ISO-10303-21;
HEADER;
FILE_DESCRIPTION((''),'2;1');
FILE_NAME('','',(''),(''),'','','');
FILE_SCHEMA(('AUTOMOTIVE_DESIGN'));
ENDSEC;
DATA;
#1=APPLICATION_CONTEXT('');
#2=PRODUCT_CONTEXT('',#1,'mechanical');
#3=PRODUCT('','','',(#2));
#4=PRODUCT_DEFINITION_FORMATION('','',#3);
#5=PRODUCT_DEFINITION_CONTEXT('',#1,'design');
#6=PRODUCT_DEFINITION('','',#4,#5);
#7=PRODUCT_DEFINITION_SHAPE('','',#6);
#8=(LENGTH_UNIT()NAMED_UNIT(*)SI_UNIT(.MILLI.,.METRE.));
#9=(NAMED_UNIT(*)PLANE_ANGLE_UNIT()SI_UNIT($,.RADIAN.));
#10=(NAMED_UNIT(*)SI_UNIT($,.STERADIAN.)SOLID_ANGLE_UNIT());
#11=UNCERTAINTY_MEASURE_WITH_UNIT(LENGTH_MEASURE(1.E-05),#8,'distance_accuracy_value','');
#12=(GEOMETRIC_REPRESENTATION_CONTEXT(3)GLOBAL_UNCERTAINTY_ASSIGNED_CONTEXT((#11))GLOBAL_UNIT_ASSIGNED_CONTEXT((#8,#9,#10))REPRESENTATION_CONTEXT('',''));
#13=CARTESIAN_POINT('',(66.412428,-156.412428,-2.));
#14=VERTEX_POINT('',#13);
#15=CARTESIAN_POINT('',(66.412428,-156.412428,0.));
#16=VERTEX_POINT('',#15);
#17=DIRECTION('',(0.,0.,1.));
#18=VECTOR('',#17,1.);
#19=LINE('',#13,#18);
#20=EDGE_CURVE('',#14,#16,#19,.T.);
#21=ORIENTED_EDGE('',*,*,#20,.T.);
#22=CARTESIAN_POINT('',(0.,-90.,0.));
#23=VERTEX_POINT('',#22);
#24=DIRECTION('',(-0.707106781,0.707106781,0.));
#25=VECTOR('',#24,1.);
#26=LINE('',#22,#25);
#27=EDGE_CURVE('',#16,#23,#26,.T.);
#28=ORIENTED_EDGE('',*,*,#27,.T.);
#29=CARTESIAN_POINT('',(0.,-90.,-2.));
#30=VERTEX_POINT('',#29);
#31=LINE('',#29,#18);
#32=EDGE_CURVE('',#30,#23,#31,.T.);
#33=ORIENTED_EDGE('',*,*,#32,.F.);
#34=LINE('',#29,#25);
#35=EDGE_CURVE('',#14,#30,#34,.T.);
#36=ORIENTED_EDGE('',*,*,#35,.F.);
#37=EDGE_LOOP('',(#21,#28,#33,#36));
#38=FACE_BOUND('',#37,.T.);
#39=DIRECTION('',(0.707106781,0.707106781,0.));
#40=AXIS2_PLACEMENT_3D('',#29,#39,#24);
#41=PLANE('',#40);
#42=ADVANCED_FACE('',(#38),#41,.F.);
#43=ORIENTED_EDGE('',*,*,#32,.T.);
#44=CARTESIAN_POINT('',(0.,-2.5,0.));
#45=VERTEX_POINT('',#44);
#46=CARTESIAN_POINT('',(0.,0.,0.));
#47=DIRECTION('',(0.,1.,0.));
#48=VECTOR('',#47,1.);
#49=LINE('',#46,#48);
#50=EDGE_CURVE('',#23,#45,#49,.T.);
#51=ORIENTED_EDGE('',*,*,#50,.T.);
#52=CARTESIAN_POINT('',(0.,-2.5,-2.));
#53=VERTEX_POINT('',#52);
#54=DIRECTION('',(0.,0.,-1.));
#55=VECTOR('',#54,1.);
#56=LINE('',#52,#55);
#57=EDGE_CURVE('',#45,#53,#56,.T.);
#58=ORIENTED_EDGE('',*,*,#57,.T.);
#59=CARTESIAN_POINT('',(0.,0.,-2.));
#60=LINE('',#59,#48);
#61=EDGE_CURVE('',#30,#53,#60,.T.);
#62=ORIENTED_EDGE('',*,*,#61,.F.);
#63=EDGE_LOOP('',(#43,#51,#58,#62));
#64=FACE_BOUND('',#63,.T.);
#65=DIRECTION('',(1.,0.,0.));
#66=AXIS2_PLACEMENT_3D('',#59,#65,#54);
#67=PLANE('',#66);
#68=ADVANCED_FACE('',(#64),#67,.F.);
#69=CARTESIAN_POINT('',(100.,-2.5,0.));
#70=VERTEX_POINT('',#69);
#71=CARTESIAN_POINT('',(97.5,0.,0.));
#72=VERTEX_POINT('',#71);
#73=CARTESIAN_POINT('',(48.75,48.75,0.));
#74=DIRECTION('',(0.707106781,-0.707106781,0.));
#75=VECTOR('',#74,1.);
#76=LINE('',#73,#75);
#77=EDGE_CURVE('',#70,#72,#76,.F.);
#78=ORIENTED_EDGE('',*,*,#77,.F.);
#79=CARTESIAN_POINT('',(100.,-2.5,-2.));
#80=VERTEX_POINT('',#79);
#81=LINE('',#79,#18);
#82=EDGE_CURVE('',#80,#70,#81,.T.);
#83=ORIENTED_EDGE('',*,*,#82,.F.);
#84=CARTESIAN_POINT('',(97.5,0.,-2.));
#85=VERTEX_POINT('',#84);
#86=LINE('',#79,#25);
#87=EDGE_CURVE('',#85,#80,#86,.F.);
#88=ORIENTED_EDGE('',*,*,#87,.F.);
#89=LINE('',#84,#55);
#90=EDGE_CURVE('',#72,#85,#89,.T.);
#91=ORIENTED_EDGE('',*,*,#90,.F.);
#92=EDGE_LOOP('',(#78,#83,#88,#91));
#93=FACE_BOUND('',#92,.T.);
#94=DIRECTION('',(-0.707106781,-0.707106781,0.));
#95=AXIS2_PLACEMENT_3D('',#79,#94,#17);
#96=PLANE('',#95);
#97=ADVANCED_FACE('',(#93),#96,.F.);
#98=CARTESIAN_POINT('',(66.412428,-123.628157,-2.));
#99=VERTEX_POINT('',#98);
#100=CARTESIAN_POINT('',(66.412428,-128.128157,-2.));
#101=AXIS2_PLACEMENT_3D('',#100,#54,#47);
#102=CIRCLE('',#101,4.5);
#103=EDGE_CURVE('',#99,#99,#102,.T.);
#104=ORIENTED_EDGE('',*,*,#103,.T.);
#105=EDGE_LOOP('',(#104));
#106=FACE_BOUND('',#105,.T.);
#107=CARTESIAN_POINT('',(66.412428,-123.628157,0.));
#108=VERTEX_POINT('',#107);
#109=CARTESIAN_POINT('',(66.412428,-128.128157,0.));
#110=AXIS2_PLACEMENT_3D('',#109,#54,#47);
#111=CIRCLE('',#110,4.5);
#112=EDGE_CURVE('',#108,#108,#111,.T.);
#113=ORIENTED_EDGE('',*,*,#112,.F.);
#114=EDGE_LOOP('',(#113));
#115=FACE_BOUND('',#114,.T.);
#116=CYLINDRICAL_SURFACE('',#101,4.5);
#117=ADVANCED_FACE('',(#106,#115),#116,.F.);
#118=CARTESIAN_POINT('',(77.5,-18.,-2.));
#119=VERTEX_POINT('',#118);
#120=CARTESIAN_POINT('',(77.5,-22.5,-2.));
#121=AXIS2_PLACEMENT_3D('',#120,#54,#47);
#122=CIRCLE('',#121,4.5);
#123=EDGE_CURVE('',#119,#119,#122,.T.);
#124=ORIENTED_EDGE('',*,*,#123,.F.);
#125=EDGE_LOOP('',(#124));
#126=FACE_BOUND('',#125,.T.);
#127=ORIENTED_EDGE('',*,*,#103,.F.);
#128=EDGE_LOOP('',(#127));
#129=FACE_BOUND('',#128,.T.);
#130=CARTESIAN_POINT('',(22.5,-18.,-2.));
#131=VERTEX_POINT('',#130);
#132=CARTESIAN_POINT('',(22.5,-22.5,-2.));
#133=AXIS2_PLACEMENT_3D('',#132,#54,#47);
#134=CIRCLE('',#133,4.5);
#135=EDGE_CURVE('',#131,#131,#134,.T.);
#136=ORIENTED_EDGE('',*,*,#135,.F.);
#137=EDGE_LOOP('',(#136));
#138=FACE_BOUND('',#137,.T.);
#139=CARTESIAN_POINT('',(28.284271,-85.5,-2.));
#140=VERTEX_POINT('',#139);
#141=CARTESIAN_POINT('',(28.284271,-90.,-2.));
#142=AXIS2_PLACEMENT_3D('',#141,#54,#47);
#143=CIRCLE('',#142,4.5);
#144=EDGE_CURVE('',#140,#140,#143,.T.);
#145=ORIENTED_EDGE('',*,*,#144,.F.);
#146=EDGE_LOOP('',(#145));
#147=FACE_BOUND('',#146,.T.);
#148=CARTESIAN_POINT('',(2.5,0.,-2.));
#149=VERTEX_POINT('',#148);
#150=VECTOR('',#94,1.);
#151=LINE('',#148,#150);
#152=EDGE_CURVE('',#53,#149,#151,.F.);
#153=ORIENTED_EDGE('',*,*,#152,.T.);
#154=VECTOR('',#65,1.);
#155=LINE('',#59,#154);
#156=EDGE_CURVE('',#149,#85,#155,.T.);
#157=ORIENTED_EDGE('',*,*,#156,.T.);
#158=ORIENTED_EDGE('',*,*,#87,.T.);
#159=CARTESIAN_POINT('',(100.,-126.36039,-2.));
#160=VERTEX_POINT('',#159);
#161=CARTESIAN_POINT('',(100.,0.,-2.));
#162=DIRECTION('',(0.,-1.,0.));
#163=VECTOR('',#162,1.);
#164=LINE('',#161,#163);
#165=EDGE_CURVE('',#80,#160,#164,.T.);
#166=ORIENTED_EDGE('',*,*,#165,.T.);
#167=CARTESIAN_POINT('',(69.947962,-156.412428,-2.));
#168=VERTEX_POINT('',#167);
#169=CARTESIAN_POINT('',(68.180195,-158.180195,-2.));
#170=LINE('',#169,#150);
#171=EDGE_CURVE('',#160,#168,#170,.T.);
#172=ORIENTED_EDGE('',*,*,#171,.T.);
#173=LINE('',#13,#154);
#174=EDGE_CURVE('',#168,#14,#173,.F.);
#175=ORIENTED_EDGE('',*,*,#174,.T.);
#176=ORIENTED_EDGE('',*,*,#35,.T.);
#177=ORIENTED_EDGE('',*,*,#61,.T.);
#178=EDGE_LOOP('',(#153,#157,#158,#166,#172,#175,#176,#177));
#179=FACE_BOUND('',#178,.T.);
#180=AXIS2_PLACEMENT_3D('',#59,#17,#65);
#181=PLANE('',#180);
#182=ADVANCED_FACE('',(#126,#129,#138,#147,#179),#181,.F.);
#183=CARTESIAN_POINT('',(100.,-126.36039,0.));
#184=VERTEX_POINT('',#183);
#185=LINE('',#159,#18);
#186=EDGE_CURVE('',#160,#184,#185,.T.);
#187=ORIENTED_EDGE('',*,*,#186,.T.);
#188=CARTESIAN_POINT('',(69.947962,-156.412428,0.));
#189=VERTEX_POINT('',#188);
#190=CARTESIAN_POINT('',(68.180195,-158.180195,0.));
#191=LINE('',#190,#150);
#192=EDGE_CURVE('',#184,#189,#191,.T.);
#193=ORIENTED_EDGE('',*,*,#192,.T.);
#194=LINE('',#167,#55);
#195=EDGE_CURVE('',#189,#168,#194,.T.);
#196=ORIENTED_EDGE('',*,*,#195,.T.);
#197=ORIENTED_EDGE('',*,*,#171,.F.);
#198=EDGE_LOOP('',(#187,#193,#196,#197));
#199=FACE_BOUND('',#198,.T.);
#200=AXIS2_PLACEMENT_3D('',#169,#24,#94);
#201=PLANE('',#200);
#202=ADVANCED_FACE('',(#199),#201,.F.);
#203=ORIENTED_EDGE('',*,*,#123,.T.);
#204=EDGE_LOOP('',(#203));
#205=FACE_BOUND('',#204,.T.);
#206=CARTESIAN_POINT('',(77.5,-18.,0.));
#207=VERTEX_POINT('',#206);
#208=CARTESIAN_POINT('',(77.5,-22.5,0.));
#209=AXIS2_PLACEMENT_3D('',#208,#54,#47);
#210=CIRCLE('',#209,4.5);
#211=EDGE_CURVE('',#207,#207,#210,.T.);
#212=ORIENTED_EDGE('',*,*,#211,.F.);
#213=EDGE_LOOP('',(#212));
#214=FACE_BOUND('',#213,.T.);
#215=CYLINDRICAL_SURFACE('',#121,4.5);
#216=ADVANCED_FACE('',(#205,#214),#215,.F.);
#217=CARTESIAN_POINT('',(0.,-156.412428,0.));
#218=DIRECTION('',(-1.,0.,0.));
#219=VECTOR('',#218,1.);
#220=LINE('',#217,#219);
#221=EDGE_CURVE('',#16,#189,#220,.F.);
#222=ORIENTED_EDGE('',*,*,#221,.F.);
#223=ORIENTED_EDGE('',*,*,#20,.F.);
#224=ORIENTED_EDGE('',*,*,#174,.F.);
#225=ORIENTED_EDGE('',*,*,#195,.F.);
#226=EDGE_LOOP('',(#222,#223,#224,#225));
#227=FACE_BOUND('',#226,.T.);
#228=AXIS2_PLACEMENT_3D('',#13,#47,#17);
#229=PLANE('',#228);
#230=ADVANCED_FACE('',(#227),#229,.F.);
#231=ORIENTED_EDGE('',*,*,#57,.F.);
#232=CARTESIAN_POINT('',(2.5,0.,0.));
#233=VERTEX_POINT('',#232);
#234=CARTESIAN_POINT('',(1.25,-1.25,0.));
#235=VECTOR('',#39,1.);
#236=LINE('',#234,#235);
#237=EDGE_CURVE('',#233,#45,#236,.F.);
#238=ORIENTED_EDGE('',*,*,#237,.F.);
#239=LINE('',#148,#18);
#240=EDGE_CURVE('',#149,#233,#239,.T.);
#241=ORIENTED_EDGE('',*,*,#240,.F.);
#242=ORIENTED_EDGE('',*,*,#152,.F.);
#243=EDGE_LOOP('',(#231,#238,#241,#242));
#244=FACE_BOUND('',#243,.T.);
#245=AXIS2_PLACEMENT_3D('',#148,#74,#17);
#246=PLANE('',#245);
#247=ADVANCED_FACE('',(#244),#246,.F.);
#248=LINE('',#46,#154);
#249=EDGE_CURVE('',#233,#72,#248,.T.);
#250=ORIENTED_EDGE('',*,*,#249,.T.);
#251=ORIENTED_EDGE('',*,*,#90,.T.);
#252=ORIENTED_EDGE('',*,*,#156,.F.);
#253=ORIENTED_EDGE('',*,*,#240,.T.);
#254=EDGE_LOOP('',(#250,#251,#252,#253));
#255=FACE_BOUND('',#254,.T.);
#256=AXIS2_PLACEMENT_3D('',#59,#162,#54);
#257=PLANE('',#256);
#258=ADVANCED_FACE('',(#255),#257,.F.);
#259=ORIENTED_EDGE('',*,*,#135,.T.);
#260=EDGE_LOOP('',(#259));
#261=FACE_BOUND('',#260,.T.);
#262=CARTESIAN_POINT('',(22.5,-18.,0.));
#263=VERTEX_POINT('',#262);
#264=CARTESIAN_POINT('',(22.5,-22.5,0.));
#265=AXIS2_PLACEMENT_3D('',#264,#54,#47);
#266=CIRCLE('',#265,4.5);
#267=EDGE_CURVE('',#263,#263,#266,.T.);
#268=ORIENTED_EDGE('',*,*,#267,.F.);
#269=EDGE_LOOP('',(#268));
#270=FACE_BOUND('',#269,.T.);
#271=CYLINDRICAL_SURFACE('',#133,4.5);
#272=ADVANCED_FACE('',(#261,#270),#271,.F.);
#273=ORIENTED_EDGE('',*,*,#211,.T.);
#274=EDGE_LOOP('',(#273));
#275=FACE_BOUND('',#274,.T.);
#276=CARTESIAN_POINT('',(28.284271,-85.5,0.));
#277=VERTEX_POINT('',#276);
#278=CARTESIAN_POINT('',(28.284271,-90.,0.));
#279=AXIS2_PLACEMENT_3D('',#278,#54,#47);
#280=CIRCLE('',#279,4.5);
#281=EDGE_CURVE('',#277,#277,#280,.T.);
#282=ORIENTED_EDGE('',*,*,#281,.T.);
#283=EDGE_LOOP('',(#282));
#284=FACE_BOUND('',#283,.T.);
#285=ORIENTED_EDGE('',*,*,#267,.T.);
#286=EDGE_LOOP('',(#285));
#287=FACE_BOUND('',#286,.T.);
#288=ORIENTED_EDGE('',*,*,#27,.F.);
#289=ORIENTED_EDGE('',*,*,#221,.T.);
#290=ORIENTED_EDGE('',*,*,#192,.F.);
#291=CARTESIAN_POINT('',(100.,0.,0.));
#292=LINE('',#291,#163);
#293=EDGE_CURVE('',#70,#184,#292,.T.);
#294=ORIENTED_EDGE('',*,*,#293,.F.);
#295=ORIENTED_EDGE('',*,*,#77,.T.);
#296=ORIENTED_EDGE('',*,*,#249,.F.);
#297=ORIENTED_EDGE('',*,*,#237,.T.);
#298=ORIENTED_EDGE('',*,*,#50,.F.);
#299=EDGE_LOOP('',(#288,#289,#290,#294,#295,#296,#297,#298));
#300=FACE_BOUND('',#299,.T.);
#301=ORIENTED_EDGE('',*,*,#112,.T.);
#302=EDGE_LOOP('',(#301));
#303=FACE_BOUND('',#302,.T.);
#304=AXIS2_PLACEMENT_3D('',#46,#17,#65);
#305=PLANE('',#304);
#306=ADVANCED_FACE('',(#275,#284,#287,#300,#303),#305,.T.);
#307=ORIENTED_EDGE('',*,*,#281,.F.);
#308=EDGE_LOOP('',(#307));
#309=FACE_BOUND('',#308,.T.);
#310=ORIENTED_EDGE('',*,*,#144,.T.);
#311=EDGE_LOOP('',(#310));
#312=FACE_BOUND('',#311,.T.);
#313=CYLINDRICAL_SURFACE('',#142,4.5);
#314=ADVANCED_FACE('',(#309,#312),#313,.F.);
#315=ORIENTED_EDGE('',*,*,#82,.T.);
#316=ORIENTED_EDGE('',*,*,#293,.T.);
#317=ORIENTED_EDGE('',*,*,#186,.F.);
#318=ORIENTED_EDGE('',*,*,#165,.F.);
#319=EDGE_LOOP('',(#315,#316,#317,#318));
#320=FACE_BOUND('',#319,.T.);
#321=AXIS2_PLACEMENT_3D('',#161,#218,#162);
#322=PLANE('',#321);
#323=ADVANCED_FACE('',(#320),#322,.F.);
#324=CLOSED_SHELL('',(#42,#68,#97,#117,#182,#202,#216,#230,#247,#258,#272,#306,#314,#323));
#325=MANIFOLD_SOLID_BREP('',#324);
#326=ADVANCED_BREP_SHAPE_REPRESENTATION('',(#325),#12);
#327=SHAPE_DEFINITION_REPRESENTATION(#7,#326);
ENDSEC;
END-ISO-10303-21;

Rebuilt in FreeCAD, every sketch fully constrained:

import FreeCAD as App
import Part
import Sketcher
from FreeCAD import Vector
Q = App.Units.Quantity


def edges_at(feature, points):
    """Names of the edges that pass closest to the given points."""
    edges = feature.Shape.Edges
    near = lambda p: min(range(len(edges)), key=lambda i: edges[i].distToShape(Part.Vertex(*p))[0])
    return sorted({f"Edge{near(p) + 1}" for p in points})


def add_polygon(sketch, points):
    """Adds a closed chain of lines whose ends are joined by coincident constraints."""
    first, n = sketch.GeometryCount, len(points)
    for a, b in zip(points, points[1:] + points[:1]):
        sketch.addGeometry(Part.LineSegment(App.Vector(*a, 0), App.Vector(*b, 0)), False)
    for i in range(n):
        sketch.addConstraint(Sketcher.Constraint("Coincident", first + i, 2, first + (i + 1) % n, 1))

doc = App.newDocument("Part")
body = doc.addObject("PartDesign::Body", "Body")

# Sketch on XY plane
sketch1 = doc.addObject("Sketcher::SketchObject", "Sketch")
body.addObject(sketch1)
sketch1.AttachmentSupport = (doc.XY_Plane, [""])
sketch1.MapMode = "FlatFace"
add_polygon(sketch1, [(0, 0), (100, 0), (100, -126), (68, -158), (0, -90)])  # lines 0-4
sketch1.addConstraint(Sketcher.Constraint("Horizontal", 0))
sketch1.addConstraint(Sketcher.Constraint("Vertical", 1))
sketch1.addConstraint(Sketcher.Constraint("Vertical", 4))
sketch1.addConstraint(Sketcher.Constraint("Coincident", 4, 2, -1, 1))
sketch1.addConstraint(Sketcher.Constraint("Perpendicular", 2, 3))
sketch1.addConstraint(Sketcher.Constraint("DistanceX", 0, 1, 0, 2, 100.0))
sketch1.addConstraint(Sketcher.Constraint("DistanceY", 4, 1, 4, 2, 90.0))
sketch1.addConstraint(Sketcher.Constraint("Angle", 2, Q("-135 deg")))
sketch1.addConstraint(Sketcher.Constraint("Distance", 2, 45.0))
pad1 = doc.addObject("PartDesign::Pad", "Pad")
body.addObject(pad1)
pad1.Profile = sketch1
pad1.Length = 2
pad1.Reversed = True

# Sketch on XY plane
sketch2 = doc.addObject("Sketcher::SketchObject", "Sketch001")
body.addObject(sketch2)
sketch2.AttachmentSupport = (doc.XY_Plane, [""])
sketch2.MapMode = "FlatFace"
sketch2.AttachmentOffset = App.Placement(Vector(0, 0, -2), App.Rotation())
sketch2.addGeometry(Part.Circle(Vector(22.5, -22.5, 0), Vector(0, 0, 1), 4.5), False)
sketch2.addGeometry(Part.Circle(Vector(77.5, -22.5, 0), Vector(0, 0, 1), 4.5), False)
sketch2.addGeometry(Part.Circle(Vector(28.3, -90, 0), Vector(0, 0, 1), 4.5), False)
sketch2.addGeometry(Part.Circle(Vector(66.4, -128.1, 0), Vector(0, 0, 1), 4.5), False)
sketch2.addConstraint(Sketcher.Constraint("Equal", 0, 1))
sketch2.addConstraint(Sketcher.Constraint("Equal", 1, 2))
sketch2.addConstraint(Sketcher.Constraint("Equal", 2, 3))
sketch2.addConstraint(Sketcher.Constraint("Horizontal", 0, 3, 1, 3))
sketch2.addConstraint(Sketcher.Constraint("Diameter", 0, 9.0))
sketch2.addConstraint(Sketcher.Constraint("DistanceY", 2, 3, -1, 1, 90.0))
sketch2.addConstraint(Sketcher.Constraint("DistanceX", 0, 3, 1, 3, 55.0))
sketch2.addConstraint(Sketcher.Constraint("DistanceX", -1, 1, 0, 3, 22.5))
sketch2.addConstraint(Sketcher.Constraint("DistanceY", 0, 3, -1, 1, 22.5))
sketch2.addConstraint(Sketcher.Constraint("DistanceX", -1, 1, 2, 3, 28.284271))
sketch2.addConstraint(Sketcher.Constraint("DistanceX", -1, 1, 3, 3, 66.412428))
sketch2.addConstraint(Sketcher.Constraint("DistanceY", 3, 3, -1, 1, 128.128157))
doc.recompute()
hole = doc.addObject("PartDesign::Hole", "Hole")
body.addObject(hole)
hole.Profile = sketch2
hole.ThreadType = "None"
hole.Diameter = 9
hole.DepthType = "ThroughAll"
hole.Reversed = True
doc.recompute()

chamfer = doc.addObject("PartDesign::Chamfer", "Chamfer")
body.addObject(chamfer)
chamfer.Base = (hole, edges_at(hole, [(68.18, -158.18, -1), (100, 0, -1), (0, 0, -1)]))
chamfer.Size = 2.5

doc.recompute()
